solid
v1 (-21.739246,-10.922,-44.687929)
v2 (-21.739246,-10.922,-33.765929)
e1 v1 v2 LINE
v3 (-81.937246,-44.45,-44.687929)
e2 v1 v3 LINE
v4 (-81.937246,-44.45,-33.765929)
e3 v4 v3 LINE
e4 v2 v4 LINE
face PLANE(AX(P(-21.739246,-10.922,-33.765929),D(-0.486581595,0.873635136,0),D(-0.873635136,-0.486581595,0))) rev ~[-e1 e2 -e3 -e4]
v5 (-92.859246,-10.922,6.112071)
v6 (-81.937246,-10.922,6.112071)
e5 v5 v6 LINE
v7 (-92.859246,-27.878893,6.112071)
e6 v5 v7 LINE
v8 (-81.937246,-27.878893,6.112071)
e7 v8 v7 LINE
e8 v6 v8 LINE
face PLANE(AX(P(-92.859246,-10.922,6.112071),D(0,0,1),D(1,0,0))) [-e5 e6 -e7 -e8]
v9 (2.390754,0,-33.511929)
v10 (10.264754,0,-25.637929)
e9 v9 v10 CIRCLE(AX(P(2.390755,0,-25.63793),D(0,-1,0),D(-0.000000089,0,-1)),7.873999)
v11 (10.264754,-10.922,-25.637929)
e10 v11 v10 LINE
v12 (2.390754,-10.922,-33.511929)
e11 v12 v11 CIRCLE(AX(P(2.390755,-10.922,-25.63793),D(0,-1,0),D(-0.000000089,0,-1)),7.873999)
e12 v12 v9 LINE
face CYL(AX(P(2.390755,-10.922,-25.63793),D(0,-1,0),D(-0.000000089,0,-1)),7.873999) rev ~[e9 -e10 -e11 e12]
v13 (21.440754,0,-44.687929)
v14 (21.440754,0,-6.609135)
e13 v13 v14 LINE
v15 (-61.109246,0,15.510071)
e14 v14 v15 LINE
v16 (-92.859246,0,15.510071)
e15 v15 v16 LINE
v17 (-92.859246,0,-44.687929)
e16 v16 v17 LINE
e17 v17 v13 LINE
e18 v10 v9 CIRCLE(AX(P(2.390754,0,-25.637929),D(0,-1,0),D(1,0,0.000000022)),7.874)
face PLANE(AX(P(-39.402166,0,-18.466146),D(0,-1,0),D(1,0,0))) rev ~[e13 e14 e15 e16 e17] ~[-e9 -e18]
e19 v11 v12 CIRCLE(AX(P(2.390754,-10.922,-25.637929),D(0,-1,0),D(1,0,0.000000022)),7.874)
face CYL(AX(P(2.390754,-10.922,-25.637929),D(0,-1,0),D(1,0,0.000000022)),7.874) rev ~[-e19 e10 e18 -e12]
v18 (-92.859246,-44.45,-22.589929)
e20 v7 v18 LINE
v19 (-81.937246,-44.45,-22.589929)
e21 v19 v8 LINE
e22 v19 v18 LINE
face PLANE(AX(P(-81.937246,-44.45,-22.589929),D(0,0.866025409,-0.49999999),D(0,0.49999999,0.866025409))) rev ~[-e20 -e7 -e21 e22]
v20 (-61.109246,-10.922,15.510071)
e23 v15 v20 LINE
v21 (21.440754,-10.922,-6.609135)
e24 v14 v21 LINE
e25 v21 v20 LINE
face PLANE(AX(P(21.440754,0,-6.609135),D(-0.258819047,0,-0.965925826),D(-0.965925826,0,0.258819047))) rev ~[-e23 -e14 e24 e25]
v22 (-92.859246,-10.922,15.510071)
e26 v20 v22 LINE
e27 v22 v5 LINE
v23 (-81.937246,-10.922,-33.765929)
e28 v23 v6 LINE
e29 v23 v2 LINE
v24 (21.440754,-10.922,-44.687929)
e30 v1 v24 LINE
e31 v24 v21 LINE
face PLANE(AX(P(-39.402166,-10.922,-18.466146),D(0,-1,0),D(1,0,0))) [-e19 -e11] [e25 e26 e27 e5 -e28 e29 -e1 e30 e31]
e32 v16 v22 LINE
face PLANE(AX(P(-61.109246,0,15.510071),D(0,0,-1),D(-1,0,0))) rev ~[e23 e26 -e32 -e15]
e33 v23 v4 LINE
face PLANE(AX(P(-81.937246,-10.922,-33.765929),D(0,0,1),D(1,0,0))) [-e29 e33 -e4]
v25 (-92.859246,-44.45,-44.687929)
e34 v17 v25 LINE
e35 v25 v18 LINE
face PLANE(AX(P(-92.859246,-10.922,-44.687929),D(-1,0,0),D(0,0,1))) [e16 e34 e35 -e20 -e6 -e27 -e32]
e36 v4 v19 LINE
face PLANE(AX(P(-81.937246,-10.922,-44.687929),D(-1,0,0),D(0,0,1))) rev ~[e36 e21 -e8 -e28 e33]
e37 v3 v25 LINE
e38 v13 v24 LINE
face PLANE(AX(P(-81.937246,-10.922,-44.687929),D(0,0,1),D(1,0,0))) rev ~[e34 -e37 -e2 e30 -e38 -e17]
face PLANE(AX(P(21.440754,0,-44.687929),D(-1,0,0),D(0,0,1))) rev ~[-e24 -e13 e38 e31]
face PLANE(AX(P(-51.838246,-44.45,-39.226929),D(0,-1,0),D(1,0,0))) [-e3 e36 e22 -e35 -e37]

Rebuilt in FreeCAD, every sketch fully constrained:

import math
import FreeCAD as App
import Part
import Sketcher
from FreeCAD import Vector
Q = App.Units.Quantity


def add_polygon(sketch, points):
    """Adds a closed chain of lines whose ends are joined by coincident constraints."""
    first, n = sketch.GeometryCount, len(points)
    for a, b in zip(points, points[1:] + points[:1]):
        sketch.addGeometry(Part.LineSegment(App.Vector(*a, 0), App.Vector(*b, 0)), False)
    for i in range(n):
        sketch.addConstraint(Sketcher.Constraint("Coincident", first + i, 2, first + (i + 1) % n, 1))

doc = App.newDocument("Part")
body = doc.addObject("PartDesign::Body", "Body")

# Sketch on XZ plane
sketch1 = body.newObject("Sketcher::SketchObject", "Sketch")
sketch1.AttachmentSupport = (doc.getObject("XZ_Plane"), [""])
sketch1.MapMode = "FlatFace"
add_polygon(sketch1, [(-61, 16), (-93, 16), (-93, -45), (21, -45), (21, -7)])  # lines 0-4
sketch1.addConstraint(Sketcher.Constraint("Horizontal", 0))
sketch1.addConstraint(Sketcher.Constraint("Vertical", 1))
sketch1.addConstraint(Sketcher.Constraint("Horizontal", 2))
sketch1.addConstraint(Sketcher.Constraint("Vertical", 3))
sketch1.addConstraint(Sketcher.Constraint("DistanceX", 2, 1, 2, 2, Q("4.5 in")))
sketch1.addConstraint(Sketcher.Constraint("Angle", 4, Q("165 deg")))
sketch1.addConstraint(Sketcher.Constraint("DistanceX", 0, 2, 0, 1, Q("1.25 in")))
sketch1.addConstraint(Sketcher.Constraint("DistanceY", 1, 2, 1, 1, Q("2.37 in")))
sketch1.addConstraint(Sketcher.Constraint("DistanceY", -1, 1, 0, 2, 15.510071))
sketch1.addConstraint(Sketcher.Constraint("DistanceX", 0, 2, -1, 1, 92.859246))
pad1 = body.newObject("PartDesign::Pad", "Pad")
pad1.Profile = sketch1
pad1.Length = Q("0.43 in")

# Sketch on XZ plane
sketch2 = body.newObject("Sketcher::SketchObject", "Sketch001")
sketch2.AttachmentSupport = (doc.getObject("XZ_Plane"), [""])
sketch2.MapMode = "FlatFace"
sketch2.AttachmentOffset = App.Placement(Vector(0, 0, 0.43 * 25.4), App.Rotation())
add_polygon(sketch2, [(-93, 6), (-93, -45), (-82, -45), (-82, 6)])  # lines 0-3
sketch2.addConstraint(Sketcher.Constraint("Vertical", 0))
sketch2.addConstraint(Sketcher.Constraint("Horizontal", 1))
sketch2.addConstraint(Sketcher.Constraint("Vertical", 2))
sketch2.addConstraint(Sketcher.Constraint("Horizontal", 3))
sketch2.addConstraint(Sketcher.Constraint("DistanceY", 0, 2, 0, 1, Q("2 in")))
sketch2.addConstraint(Sketcher.Constraint("DistanceX", 1, 1, 1, 2, Q("0.43 in")))
sketch2.addConstraint(Sketcher.Constraint("DistanceY", 0, 2, -1, 1, 44.687929))
sketch2.addConstraint(Sketcher.Constraint("DistanceX", 0, 2, -1, 1, 92.859246))
pad2 = body.newObject("PartDesign::Pad", "Pad001")
pad2.Profile = sketch2
pad2.Length = Q("1.32 in")

# Sketch on XZ plane
sketch3 = body.newObject("Sketcher::SketchObject", "Sketch002")
sketch3.AttachmentSupport = (doc.getObject("XZ_Plane"), [""])
sketch3.MapMode = "FlatFace"
sketch3.AttachmentOffset = App.Placement(Vector(0, 0, 0.43 * 25.4), App.Rotation())
add_polygon(sketch3, [(-82, -34), (-82, -45), (-22, -45), (-22, -34)])  # lines 0-3
sketch3.addConstraint(Sketcher.Constraint("Vertical", 0))
sketch3.addConstraint(Sketcher.Constraint("Horizontal", 1))
sketch3.addConstraint(Sketcher.Constraint("Vertical", 2))
sketch3.addConstraint(Sketcher.Constraint("Horizontal", 3))
sketch3.addConstraint(Sketcher.Constraint("DistanceX", 1, 1, 1, 2, Q("2.37 in")))
sketch3.addConstraint(Sketcher.Constraint("DistanceY", 0, 2, 0, 1, Q("0.43 in")))
sketch3.addConstraint(Sketcher.Constraint("DistanceY", 0, 2, -1, 1, 44.687929))
sketch3.addConstraint(Sketcher.Constraint("DistanceX", 0, 2, -1, 1, 81.937246))
pad3 = body.newObject("PartDesign::Pad", "Pad002")
pad3.Profile = sketch3
pad3.Length = Q("1.32 in")

# Sketch on XY plane
sketch4 = body.newObject("Sketcher::SketchObject", "Sketch003")
sketch4.AttachmentSupport = (doc.getObject("XY_Plane"), [""])
sketch4.MapMode = "FlatFace"
sketch4.AttachmentOffset = App.Placement(Vector(0, 0, -33.765929), App.Rotation())
add_polygon(sketch4, [(-22, -11), (-82, -44), (-22, -44)])  # lines 0-2
sketch4.addConstraint(Sketcher.Constraint("Horizontal", 1))
sketch4.addConstraint(Sketcher.Constraint("Vertical", 2))
sketch4.addConstraint(Sketcher.Constraint("DistanceX", 1, 1, 1, 2, Q("2.37 in")))
sketch4.addConstraint(Sketcher.Constraint("DistanceY", 2, 1, 2, 2, Q("1.32 in")))
sketch4.addConstraint(Sketcher.Constraint("DistanceY", 0, 2, -1, 1, Q("1.75 in")))
sketch4.addConstraint(Sketcher.Constraint("DistanceX", 0, 2, -1, 1, 81.937246))
pocket1 = body.newObject("PartDesign::Pocket", "Pocket")
pocket1.Profile = sketch4
pocket1.Length = Q("1 in")

# Sketch on XZ plane
sketch5 = body.newObject("Sketcher::SketchObject", "Sketch004")
sketch5.AttachmentSupport = (doc.getObject("XZ_Plane"), [""])
sketch5.MapMode = "FlatFace"
sketch5.AttachmentOffset = App.Placement(Vector(0, 0, 0.43 * 25.4), App.Rotation())
sketch5.addGeometry(Part.ArcOfCircle(Part.Circle(Vector(2, -26, 0), Vector(0, 0, 1), 8), math.radians(0), math.radians(270)), False)
sketch5.addGeometry(Part.ArcOfCircle(Part.Circle(Vector(2, -26, 0), Vector(0, 0, 1), 8), math.radians(-90), math.radians(0)), False)
sketch5.addConstraint(Sketcher.Constraint("Tangent", 0, 1, 1, 2))
sketch5.addConstraint(Sketcher.Constraint("Coincident", 1, 1, 0, 2))
sketch5.addConstraint(Sketcher.Constraint("Horizontal", 1, 3, 0, 1))
sketch5.addConstraint(Sketcher.Constraint("Vertical", 0, 3, 1, 1))
sketch5.addConstraint(Sketcher.Constraint("Radius", 0, Q("0.31 in")))
sketch5.addConstraint(Sketcher.Constraint("DistanceY", 0, 3, -1, 1, 25.637929))
sketch5.addConstraint(Sketcher.Constraint("DistanceX", -1, 1, 0, 3, 2.390754))
pocket2 = body.newObject("PartDesign::Pocket", "Pocket001")
pocket2.Profile = sketch5
pocket2.Type = "ThroughAll"

# Sketch on YZ plane
sketch6 = body.newObject("Sketcher::SketchObject", "Sketch005")
sketch6.AttachmentSupport = (doc.getObject("YZ_Plane"), [""])
sketch6.MapMode = "FlatFace"
sketch6.AttachmentOffset = App.Placement(Vector(0, 0, -81.937246), App.Rotation())
add_polygon(sketch6, [(-44, 6), (-44, -23), (-28, 6)])  # lines 0-2
sketch6.addConstraint(Sketcher.Constraint("Vertical", 0))
sketch6.addConstraint(Sketcher.Constraint("Horizontal", 2))
sketch6.addConstraint(Sketcher.Constraint("Angle", 1, Q("60.000001 deg")))
sketch6.addConstraint(Sketcher.Constraint("DistanceY", 0, 2, 0, 1, Q("1.13 in")))
sketch6.addConstraint(Sketcher.Constraint("DistanceX", 0, 2, -1, 1, Q("1.75 in")))
sketch6.addConstraint(Sketcher.Constraint("DistanceY", 0, 2, -1, 1, 22.589929))
pocket3 = body.newObject("PartDesign::Pocket", "Pocket002")
pocket3.Profile = sketch6
pocket3.Type = "ThroughAll"

doc.recompute()
